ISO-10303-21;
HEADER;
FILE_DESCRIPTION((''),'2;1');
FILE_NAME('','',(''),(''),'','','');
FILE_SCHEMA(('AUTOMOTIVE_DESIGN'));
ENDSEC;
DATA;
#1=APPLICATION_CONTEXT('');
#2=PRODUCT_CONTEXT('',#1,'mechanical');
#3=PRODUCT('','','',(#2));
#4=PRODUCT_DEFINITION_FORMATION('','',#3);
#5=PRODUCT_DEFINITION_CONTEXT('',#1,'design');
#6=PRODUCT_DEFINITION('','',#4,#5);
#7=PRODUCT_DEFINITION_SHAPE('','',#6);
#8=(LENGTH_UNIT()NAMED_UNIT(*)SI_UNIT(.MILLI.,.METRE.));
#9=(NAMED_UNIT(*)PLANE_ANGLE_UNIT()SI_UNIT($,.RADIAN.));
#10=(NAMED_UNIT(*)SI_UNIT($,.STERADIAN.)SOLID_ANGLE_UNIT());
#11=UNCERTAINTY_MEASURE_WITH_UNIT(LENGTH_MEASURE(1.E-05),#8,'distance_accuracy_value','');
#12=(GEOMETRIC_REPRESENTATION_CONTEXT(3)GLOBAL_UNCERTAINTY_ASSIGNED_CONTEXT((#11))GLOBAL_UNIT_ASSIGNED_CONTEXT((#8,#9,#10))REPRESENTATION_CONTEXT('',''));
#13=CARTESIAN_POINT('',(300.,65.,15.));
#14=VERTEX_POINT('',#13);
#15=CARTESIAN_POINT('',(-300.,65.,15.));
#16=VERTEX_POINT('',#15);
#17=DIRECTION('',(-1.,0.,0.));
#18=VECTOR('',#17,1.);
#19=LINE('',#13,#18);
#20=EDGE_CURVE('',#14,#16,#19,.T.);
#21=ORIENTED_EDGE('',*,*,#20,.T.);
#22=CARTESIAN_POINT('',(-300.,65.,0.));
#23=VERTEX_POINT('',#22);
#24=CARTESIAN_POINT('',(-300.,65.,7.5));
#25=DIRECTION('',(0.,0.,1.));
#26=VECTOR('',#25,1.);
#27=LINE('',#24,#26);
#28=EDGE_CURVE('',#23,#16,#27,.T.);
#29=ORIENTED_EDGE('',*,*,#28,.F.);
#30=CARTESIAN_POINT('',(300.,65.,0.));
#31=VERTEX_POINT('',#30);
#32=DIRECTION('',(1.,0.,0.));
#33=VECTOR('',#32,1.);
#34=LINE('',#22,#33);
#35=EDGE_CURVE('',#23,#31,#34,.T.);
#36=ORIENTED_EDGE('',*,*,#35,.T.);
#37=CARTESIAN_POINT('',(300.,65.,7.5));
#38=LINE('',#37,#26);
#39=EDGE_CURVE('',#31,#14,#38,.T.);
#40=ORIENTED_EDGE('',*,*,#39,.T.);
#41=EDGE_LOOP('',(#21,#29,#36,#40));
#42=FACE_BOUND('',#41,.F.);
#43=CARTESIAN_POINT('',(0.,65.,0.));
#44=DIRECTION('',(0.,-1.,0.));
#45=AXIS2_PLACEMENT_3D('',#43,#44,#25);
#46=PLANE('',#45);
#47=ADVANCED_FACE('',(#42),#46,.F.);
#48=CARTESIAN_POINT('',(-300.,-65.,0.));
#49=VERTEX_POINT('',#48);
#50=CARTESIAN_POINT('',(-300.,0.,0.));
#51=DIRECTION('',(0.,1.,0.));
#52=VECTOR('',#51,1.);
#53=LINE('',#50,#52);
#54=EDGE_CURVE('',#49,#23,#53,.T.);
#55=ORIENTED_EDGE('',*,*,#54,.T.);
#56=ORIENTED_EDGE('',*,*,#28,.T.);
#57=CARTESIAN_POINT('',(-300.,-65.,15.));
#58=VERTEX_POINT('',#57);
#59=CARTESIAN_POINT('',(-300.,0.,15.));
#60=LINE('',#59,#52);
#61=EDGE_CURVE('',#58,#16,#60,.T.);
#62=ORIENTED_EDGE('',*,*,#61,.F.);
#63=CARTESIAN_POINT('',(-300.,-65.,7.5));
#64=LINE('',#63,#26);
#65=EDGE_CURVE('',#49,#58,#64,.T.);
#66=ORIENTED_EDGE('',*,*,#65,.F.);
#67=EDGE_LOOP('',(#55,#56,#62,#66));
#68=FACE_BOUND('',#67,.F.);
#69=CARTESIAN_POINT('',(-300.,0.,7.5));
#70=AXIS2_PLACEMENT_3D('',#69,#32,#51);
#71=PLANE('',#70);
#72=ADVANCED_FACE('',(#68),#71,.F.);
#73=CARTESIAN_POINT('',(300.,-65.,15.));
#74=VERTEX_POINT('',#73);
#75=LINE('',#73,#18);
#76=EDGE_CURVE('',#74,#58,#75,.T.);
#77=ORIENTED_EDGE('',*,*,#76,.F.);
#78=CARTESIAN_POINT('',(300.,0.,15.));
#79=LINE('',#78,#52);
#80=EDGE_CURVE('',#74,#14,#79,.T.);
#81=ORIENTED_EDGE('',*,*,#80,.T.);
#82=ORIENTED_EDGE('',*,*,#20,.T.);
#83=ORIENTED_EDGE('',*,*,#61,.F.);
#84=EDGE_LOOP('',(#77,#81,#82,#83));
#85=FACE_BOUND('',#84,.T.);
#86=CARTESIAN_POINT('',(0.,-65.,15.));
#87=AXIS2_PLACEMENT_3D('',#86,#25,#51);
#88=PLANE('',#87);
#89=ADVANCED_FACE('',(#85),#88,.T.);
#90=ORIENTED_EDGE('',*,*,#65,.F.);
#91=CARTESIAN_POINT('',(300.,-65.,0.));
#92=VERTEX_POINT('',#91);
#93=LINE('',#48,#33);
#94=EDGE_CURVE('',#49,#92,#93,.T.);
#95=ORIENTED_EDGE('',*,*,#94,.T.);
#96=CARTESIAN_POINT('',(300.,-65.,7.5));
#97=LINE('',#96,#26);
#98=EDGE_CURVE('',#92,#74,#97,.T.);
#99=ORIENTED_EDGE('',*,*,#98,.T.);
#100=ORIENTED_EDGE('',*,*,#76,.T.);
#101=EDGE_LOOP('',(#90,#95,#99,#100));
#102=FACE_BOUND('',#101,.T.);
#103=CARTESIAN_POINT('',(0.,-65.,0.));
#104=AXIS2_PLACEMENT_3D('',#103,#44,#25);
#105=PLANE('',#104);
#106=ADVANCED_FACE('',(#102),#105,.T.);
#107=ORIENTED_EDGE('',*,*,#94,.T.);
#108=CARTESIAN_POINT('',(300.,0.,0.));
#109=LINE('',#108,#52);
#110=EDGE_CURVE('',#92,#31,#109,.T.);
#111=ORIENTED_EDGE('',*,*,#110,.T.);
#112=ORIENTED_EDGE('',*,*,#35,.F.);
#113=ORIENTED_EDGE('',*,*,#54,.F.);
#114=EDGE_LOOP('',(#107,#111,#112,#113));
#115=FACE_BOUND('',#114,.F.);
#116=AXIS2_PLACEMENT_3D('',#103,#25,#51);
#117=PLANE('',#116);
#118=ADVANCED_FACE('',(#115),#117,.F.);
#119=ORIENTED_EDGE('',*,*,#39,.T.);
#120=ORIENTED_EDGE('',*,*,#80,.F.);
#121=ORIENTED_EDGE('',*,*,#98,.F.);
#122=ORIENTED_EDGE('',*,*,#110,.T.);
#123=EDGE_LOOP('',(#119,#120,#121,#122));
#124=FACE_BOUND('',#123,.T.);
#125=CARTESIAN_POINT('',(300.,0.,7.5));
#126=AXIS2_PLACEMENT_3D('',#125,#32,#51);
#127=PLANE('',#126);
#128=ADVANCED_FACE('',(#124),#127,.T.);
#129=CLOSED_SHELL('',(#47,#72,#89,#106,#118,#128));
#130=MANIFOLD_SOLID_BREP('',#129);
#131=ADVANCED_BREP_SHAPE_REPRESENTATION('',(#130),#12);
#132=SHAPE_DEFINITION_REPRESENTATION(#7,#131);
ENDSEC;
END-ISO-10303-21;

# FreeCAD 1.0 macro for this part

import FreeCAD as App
import Part
import Sketcher

doc = App.newDocument("Part")
params = doc.addObject("Spreadsheet::Sheet", "Params")
for row, (alias, value) in enumerate([
    ("sketch1_width", "130 mm"),
    ("sketch1_height", "15 mm"),
    ("pad1_length", "300 mm"),
    ("pad1_length2", "300 mm"),
], start=1):
    params.set(f"A{row}", alias)
    params.set(f"B{row}", "=" + value)
    params.setAlias(f"B{row}", alias)

body = doc.addObject("PartDesign::Body", "Body")

# Sketch on YZ plane
sketch1 = body.newObject("Sketcher::SketchObject", "Sketch")
sketch1.AttachmentSupport = (doc.getObject("YZ_Plane"), [""])
sketch1.MapMode = "FlatFace"
sketch1.addGeometry(Part.LineSegment(App.Vector(-65, 15, 0), App.Vector(-65, 0, 0)), False)
sketch1.addGeometry(Part.LineSegment(App.Vector(-65, 0, 0), App.Vector(65, 0, 0)), False)
sketch1.addGeometry(Part.LineSegment(App.Vector(65, 0, 0), App.Vector(65, 15, 0)), False)
sketch1.addGeometry(Part.LineSegment(App.Vector(65, 15, 0), App.Vector(-65, 15, 0)), False)
sketch1.addConstraint(Sketcher.Constraint("Coincident", 0, 2, 1, 1))
sketch1.addConstraint(Sketcher.Constraint("Coincident", 1, 2, 2, 1))
sketch1.addConstraint(Sketcher.Constraint("Coincident", 2, 2, 3, 1))
sketch1.addConstraint(Sketcher.Constraint("Coincident", 3, 2, 0, 1))
sketch1.addConstraint(Sketcher.Constraint("Vertical", 0))
sketch1.addConstraint(Sketcher.Constraint("Horizontal", 1))
sketch1.addConstraint(Sketcher.Constraint("Vertical", 2))
sketch1.addConstraint(Sketcher.Constraint("Horizontal", 3))
sketch1.addConstraint(Sketcher.Constraint("Symmetric", 0, 2, 1, 2, -1, 1))
sketch1.addConstraint(Sketcher.Constraint("DistanceX", 1, 1, 1, 2, 130.0))
sketch1.addConstraint(Sketcher.Constraint("DistanceY", 0, 2, 0, 1, 15.0))
sketch1.setExpression("Constraints[9]", "Params.sketch1_width")
sketch1.setExpression("Constraints[10]", "Params.sketch1_height")
pad1 = body.newObject("PartDesign::Pad", "Pad")
pad1.Profile = sketch1
pad1.Type = "TwoLengths"
pad1.setExpression("Length", "Params.pad1_length")
pad1.setExpression("Length2", "Params.pad1_length2")
pad1.Reversed = True

doc.recompute()
